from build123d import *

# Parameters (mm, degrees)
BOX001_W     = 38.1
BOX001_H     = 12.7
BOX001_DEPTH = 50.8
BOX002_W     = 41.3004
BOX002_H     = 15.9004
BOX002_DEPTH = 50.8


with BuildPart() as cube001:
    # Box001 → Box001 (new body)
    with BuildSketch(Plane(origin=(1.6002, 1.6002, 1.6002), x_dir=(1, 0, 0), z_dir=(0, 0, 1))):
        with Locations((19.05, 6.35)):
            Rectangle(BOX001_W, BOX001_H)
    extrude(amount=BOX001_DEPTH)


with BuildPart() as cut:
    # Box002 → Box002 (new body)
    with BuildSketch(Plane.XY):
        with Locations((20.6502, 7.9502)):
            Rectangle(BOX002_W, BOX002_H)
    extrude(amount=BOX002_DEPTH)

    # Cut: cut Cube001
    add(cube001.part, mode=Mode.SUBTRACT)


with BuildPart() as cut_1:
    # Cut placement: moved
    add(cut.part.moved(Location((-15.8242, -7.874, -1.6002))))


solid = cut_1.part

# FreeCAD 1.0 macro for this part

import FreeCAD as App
import Part
import Sketcher
Q = App.Units.Quantity

doc = App.newDocument("Part")
body = doc.addObject("PartDesign::Body", "Body")

# Sketch on XY plane
sketch1 = body.newObject("Sketcher::SketchObject", "Sketch")
sketch1.AttachmentSupport = (doc.getObject("XY_Plane"), [""])
sketch1.MapMode = "FlatFace"
sketch1.AttachmentOffset = App.Placement(App.Vector(0, 0, 0.063 * 25.4), App.Rotation())
sketch1.addGeometry(Part.LineSegment(App.Vector(2, 14, 0), App.Vector(2, 2, 0)), False)
sketch1.addGeometry(Part.LineSegment(App.Vector(2, 2, 0), App.Vector(40, 2, 0)), False)
sketch1.addGeometry(Part.LineSegment(App.Vector(40, 2, 0), App.Vector(40, 14, 0)), False)
sketch1.addGeometry(Part.LineSegment(App.Vector(40, 14, 0), App.Vector(2, 14, 0)), False)
sketch1.addConstraint(Sketcher.Constraint("Coincident", 0, 2, 1, 1))
sketch1.addConstraint(Sketcher.Constraint("Coincident", 1, 2, 2, 1))
sketch1.addConstraint(Sketcher.Constraint("Coincident", 2, 2, 3, 1))
sketch1.addConstraint(Sketcher.Constraint("Coincident", 3, 2, 0, 1))
sketch1.addConstraint(Sketcher.Constraint("Vertical", 0))
sketch1.addConstraint(Sketcher.Constraint("Horizontal", 1))
sketch1.addConstraint(Sketcher.Constraint("Vertical", 2))
sketch1.addConstraint(Sketcher.Constraint("Horizontal", 3))
sketch1.addConstraint(Sketcher.Constraint("DistanceX", 1, 1, 1, 2, Q("1.5 in")))
sketch1.addConstraint(Sketcher.Constraint("DistanceY", 0, 2, 0, 1, Q("0.5 in")))
sketch1.addConstraint(Sketcher.Constraint("DistanceX", -1, 1, 0, 2, Q("0.063 in")))
sketch1.addConstraint(Sketcher.Constraint("DistanceY", -1, 1, 0, 2, Q("0.063 in")))
pad1 = body.newObject("PartDesign::Pad", "Pad")
pad1.Profile = sketch1
pad1.Length = Q("2 in")
body2 = doc.addObject("PartDesign::Body", "Body001")

# Sketch on XY plane
sketch2 = body2.newObject("Sketcher::SketchObject", "Sketch001")
sketch2.AttachmentSupport = (doc.getObject("XY_Plane001"), [""])
sketch2.MapMode = "FlatFace"
sketch2.addGeometry(Part.LineSegment(App.Vector(0, 16, 0), App.Vector(0, 0, 0)), False)
sketch2.addGeometry(Part.LineSegment(App.Vector(0, 0, 0), App.Vector(41, 0, 0)), False)
sketch2.addGeometry(Part.LineSegment(App.Vector(41, 0, 0), App.Vector(41, 16, 0)), False)
sketch2.addGeometry(Part.LineSegment(App.Vector(41, 16, 0), App.Vector(0, 16, 0)), False)
sketch2.addConstraint(Sketcher.Constraint("Coincident", 0, 2, 1, 1))
sketch2.addConstraint(Sketcher.Constraint("Coincident", 1, 2, 2, 1))
sketch2.addConstraint(Sketcher.Constraint("Coincident", 2, 2, 3, 1))
sketch2.addConstraint(Sketcher.Constraint("Coincident", 3, 2, 0, 1))
sketch2.addConstraint(Sketcher.Constraint("Vertical", 0))
sketch2.addConstraint(Sketcher.Constraint("Horizontal", 1))
sketch2.addConstraint(Sketcher.Constraint("Vertical", 2))
sketch2.addConstraint(Sketcher.Constraint("Horizontal", 3))
sketch2.addConstraint(Sketcher.Constraint("Coincident", 0, 2, -1, 1))
sketch2.addConstraint(Sketcher.Constraint("DistanceX", 1, 1, 1, 2, Q("1.626 in")))
sketch2.addConstraint(Sketcher.Constraint("DistanceY", 0, 2, 0, 1, Q("0.626 in")))
pad2 = body2.newObject("PartDesign::Pad", "Pad001")
pad2.Profile = sketch2
pad2.Length = Q("2 in")
doc.recompute()

boolean = body2.newObject("PartDesign::Boolean", "Boolean")
boolean.Type = "Cut"
boolean.addObjects([body])
body3 = doc.addObject("PartDesign::Body", "Body002")
doc.recompute()

body2.Placement = App.Placement(App.Vector(-15.8242, -7.874, -1.6002), App.Rotation(App.Vector(0, 0, 1), 0))
boolean2 = body3.newObject("PartDesign::Boolean", "Boolean001")
boolean2.Type = "Fuse"
boolean2.addObjects([body2])

doc.recompute()
